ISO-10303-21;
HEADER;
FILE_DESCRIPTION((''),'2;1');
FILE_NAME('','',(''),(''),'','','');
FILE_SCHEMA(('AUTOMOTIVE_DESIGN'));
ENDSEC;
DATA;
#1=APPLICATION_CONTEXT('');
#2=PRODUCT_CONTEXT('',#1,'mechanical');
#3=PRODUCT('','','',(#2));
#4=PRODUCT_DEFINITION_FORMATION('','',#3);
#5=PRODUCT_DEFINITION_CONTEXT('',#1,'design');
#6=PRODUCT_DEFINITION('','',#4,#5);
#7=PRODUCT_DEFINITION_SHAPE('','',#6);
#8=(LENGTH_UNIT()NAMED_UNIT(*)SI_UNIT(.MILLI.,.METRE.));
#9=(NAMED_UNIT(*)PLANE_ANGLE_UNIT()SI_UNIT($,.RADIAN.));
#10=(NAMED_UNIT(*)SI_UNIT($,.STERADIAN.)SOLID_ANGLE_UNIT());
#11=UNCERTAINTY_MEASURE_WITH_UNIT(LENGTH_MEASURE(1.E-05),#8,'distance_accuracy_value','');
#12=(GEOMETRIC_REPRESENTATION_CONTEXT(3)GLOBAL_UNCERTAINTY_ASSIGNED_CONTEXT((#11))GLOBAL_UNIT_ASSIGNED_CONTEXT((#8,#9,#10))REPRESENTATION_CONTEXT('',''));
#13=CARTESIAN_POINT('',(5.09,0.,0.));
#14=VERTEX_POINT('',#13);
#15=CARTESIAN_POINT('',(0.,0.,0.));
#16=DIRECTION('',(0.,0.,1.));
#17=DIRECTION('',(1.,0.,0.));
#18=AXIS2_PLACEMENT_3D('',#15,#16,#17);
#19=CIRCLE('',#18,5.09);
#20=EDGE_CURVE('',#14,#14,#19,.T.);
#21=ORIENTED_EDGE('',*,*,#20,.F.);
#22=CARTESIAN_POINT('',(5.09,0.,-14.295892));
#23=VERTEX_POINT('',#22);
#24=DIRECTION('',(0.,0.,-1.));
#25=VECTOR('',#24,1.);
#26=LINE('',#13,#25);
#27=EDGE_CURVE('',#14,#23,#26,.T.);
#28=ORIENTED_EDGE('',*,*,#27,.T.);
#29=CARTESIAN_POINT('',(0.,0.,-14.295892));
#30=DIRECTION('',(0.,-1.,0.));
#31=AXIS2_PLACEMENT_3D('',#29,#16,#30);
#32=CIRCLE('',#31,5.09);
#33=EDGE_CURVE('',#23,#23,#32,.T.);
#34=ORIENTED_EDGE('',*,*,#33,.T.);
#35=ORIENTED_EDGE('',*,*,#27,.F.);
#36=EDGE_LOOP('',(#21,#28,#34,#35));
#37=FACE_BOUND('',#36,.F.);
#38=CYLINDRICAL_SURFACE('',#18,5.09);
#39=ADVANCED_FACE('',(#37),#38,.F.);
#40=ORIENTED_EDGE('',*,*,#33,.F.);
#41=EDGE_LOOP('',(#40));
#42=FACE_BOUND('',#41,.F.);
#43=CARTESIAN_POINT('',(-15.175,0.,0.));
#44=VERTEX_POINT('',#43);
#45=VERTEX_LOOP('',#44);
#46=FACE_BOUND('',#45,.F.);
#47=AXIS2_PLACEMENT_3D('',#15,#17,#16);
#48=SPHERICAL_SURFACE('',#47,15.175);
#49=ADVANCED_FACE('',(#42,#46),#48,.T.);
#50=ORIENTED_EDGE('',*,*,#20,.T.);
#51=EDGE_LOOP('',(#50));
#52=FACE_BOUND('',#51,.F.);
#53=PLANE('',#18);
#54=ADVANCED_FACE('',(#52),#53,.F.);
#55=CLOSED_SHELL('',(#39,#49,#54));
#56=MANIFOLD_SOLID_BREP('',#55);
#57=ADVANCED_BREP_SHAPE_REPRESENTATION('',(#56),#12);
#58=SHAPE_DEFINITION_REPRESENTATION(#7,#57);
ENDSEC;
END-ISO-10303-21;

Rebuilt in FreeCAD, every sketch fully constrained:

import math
import FreeCAD as App
import Part
import Sketcher

V = App.Vector

doc = App.newDocument("Part")
body = doc.addObject("PartDesign::Body", "Body")

# Sketch on XZ plane
sketch1 = body.newObject("Sketcher::SketchObject", "Sketch")
sketch1.AttachmentSupport = (doc.getObject("XZ_Plane"), [""])
sketch1.MapMode = "FlatFace"
sketch1.addGeometry(Part.ArcOfCircle(Part.Circle(V(0, 0, 0), V(0, 0, 1), 15.175), math.radians(0), math.radians(180)), False)
sketch1.addGeometry(Part.LineSegment(V(-15.175, 0, 0), V(15.175, 0, 0)), False)
sketch1.addConstraint(Sketcher.Constraint("Coincident", 0, 1, 1, 2))
sketch1.addConstraint(Sketcher.Constraint("Coincident", 1, 1, 0, 2))
sketch1.addConstraint(Sketcher.Constraint("Horizontal", 1))
sketch1.addConstraint(Sketcher.Constraint("Coincident", 0, 3, -1, 1))
sketch1.addConstraint(Sketcher.Constraint("PointOnObject", 0, 1, -1))
sketch1.addConstraint(Sketcher.Constraint("Radius", 0, 15.175))
revolution = body.newObject("PartDesign::Revolution", "Revolution")
revolution.Profile = sketch1
revolution.ReferenceAxis = (sketch1, ["H_Axis"])
revolution.Angle = 360

# Sketch on XY plane
sketch2 = body.newObject("Sketcher::SketchObject", "Sketch001")
sketch2.AttachmentSupport = (doc.getObject("XY_Plane"), [""])
sketch2.MapMode = "FlatFace"
sketch2.addGeometry(Part.Circle(V(0, 0, 0), V(0, 0, 1), 5.09), False)
sketch2.addConstraint(Sketcher.Constraint("Coincident", 0, 3, -1, 1))
sketch2.addConstraint(Sketcher.Constraint("Diameter", 0, 10.18))
pocket1 = body.newObject("PartDesign::Pocket", "Pocket")
pocket1.Profile = sketch2
pocket1.Length = 30.4437

doc.recompute()
